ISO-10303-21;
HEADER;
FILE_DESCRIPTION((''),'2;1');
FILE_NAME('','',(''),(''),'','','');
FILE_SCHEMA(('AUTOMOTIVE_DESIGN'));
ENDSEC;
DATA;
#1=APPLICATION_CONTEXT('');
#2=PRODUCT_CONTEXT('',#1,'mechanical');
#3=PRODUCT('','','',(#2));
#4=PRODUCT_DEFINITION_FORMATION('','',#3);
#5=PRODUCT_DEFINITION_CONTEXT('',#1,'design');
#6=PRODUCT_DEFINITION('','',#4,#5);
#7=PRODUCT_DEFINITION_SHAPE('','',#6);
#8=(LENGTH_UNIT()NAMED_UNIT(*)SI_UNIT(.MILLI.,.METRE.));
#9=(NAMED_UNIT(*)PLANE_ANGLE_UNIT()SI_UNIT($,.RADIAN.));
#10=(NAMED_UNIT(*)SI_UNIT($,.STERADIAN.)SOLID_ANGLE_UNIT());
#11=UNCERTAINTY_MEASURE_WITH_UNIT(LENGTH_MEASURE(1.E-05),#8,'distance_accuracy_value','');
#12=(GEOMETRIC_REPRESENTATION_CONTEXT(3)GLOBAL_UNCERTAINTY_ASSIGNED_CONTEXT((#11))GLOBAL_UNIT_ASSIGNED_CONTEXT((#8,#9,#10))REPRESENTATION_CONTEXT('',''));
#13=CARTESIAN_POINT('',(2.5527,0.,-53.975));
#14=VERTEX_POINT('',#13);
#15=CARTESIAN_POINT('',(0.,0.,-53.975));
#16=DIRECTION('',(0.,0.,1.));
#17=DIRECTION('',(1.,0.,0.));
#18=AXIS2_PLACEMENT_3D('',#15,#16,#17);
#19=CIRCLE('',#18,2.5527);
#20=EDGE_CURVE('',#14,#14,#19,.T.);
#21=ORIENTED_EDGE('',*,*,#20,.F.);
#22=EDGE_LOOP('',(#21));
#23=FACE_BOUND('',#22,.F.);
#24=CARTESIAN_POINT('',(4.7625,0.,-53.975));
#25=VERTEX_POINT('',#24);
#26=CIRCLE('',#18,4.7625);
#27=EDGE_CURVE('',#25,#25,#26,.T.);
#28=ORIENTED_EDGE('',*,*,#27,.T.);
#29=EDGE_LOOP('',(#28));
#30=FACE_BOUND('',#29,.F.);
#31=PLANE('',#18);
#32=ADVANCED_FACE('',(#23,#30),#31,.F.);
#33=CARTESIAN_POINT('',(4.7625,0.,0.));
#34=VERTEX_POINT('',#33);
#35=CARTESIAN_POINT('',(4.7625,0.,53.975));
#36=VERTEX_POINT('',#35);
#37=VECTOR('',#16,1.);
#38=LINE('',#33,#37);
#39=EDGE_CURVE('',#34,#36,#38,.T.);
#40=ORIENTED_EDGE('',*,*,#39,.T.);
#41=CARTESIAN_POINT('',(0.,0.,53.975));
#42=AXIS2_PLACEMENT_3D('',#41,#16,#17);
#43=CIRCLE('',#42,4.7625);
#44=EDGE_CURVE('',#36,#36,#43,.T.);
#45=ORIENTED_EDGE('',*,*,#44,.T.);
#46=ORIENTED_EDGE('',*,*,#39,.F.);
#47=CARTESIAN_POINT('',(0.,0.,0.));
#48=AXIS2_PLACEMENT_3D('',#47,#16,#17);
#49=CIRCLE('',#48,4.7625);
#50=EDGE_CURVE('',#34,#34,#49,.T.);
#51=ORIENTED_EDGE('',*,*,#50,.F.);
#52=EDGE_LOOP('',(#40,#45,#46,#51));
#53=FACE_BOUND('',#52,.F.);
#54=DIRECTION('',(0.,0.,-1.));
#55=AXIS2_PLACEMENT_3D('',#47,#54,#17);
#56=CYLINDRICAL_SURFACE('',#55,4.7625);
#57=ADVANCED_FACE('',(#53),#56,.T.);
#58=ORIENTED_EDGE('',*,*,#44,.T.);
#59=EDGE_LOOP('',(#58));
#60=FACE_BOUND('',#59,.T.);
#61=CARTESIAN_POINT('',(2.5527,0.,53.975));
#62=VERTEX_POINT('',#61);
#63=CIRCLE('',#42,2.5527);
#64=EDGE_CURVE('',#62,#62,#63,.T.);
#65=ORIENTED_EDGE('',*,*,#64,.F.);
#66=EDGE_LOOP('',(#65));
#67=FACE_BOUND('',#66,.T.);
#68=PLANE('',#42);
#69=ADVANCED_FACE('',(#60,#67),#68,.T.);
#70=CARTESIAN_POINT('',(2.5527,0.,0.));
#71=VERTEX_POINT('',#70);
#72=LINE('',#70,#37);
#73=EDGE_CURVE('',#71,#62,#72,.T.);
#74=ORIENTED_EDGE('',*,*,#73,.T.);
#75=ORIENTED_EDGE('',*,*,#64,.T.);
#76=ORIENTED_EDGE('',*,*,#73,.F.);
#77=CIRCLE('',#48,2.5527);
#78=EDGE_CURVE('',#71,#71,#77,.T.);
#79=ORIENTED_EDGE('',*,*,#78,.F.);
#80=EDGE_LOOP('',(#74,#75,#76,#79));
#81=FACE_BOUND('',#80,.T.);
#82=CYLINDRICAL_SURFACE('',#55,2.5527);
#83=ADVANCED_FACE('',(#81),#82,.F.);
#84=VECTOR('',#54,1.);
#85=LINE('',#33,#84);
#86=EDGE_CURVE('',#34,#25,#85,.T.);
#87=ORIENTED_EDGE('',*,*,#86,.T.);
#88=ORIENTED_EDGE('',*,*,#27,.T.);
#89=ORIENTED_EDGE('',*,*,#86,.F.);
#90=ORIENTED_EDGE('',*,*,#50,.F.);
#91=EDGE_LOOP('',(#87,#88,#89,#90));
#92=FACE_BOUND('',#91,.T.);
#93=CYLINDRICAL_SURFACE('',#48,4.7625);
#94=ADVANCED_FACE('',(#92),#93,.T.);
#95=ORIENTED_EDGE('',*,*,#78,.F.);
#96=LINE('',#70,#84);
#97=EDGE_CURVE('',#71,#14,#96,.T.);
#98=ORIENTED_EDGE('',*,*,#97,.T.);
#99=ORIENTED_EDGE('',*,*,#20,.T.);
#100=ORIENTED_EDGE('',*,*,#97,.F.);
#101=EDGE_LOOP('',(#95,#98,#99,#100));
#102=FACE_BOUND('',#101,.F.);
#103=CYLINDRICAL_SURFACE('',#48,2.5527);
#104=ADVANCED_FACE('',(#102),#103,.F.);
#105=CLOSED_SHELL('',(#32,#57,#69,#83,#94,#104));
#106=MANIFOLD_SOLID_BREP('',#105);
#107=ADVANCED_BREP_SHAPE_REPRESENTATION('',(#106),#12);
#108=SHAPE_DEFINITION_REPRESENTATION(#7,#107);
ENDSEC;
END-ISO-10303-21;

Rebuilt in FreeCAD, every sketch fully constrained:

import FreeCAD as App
import Part
import Sketcher
Q = App.Units.Quantity

doc = App.newDocument("Part")
body = doc.addObject("PartDesign::Body", "Body")

sketch1 = doc.addObject("Sketcher::SketchObject", "Sketch")
body.addObject(sketch1)
sketch1.AttachmentSupport = (doc.XY_Plane, [""])
sketch1.MapMode = "FlatFace"
sketch1.addGeometry(Part.Circle(App.Vector(0, 0, 0), App.Vector(0, 0, 1), 4.7625), False)
sketch1.addGeometry(Part.Circle(App.Vector(0, 0, 0), App.Vector(0, 0, 1), 2.5527), False)
sketch1.addConstraint(Sketcher.Constraint("Coincident", 0, 3, -1, 1))
sketch1.addConstraint(Sketcher.Constraint("Coincident", 1, 3, -1, 1))
sketch1.addConstraint(Sketcher.Constraint("Diameter", 0, Q("0.375 in")))
sketch1.addConstraint(Sketcher.Constraint("Diameter", 1, Q("0.201 in")))
pad1 = doc.addObject("PartDesign::Pad", "Pad")
body.addObject(pad1)
pad1.Profile = sketch1
pad1.Length = Q("4.25 in")
pad1.Midplane = True

doc.recompute()
